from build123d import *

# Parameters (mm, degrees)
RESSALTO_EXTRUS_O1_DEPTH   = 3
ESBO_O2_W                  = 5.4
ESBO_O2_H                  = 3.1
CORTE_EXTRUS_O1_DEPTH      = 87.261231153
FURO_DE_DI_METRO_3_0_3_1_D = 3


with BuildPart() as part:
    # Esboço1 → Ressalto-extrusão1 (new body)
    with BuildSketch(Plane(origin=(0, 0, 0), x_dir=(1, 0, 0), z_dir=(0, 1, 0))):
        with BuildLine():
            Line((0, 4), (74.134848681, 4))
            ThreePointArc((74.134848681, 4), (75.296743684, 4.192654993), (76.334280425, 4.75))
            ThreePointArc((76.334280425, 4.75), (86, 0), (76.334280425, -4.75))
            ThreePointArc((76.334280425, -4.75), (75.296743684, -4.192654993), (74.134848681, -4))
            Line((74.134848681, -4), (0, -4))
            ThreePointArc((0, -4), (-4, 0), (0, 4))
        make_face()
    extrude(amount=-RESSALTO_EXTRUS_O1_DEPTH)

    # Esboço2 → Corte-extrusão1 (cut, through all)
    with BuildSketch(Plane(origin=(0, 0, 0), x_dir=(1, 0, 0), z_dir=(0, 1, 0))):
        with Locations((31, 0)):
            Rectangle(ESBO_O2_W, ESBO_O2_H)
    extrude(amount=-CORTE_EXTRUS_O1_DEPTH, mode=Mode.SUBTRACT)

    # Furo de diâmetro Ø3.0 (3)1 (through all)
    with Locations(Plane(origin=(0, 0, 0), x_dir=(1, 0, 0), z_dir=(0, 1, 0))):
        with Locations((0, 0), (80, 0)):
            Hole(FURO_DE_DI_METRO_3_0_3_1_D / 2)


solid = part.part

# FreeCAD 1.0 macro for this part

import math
import FreeCAD as App
import Part
import Sketcher
from FreeCAD import Vector
Q = App.Units.Quantity

doc = App.newDocument("Part")
body = doc.addObject("PartDesign::Body", "Body")

# Sketch on XZ plane
sketch1 = body.newObject("Sketcher::SketchObject", "Sketch")
sketch1.AttachmentSupport = (doc.getObject("XZ_Plane"), [""])
sketch1.MapMode = "FlatFace"
sketch1.addGeometry(Part.LineSegment(Vector(74.134849, -4, 0), Vector(0, -4, 0)), False)
sketch1.addGeometry(Part.ArcOfCircle(Part.Circle(Vector(0, 0, 0), Vector(0, 0, 1), 4), math.radians(90), math.radians(270)), False)
sketch1.addGeometry(Part.LineSegment(Vector(0, 4, 0), Vector(74.134849, 4, 0)), False)
sketch1.addGeometry(Part.ArcOfCircle(Part.Circle(Vector(74.134849, 7.6, 0), Vector(0, 0, 1), 3.6), math.radians(-90), math.radians(-52.341538)), False)
sketch1.addGeometry(Part.ArcOfCircle(Part.Circle(Vector(80, 0, 0), Vector(0, 0, 1), 6), math.radians(-127.658462), math.radians(127.658462)), False)
sketch1.addGeometry(Part.ArcOfCircle(Part.Circle(Vector(74.134849, -7.6, 0), Vector(0, 0, 1), 3.6), math.radians(52.341538), math.radians(90)), False)
sketch1.addConstraint(Sketcher.Constraint("Tangent", 0, 2, 1, 2))
sketch1.addConstraint(Sketcher.Constraint("Tangent", 1, 1, 2, 1))
sketch1.addConstraint(Sketcher.Constraint("Tangent", 2, 2, 3, 1))
sketch1.addConstraint(Sketcher.Constraint("Tangent", 3, 2, 4, 2))
sketch1.addConstraint(Sketcher.Constraint("Tangent", 4, 1, 5, 1))
sketch1.addConstraint(Sketcher.Constraint("Tangent", 5, 2, 0, 1))
sketch1.addConstraint(Sketcher.Constraint("Horizontal", 0))
sketch1.addConstraint(Sketcher.Constraint("Horizontal", 2))
sketch1.addConstraint(Sketcher.Constraint("Coincident", 1, 3, -1, 1))
sketch1.addConstraint(Sketcher.Constraint("Equal", 3, 5))
sketch1.addConstraint(Sketcher.Constraint("PointOnObject", 4, 3, -1))
sketch1.addConstraint(Sketcher.Constraint("Radius", 1, Q("4 mm")))
sketch1.addConstraint(Sketcher.Constraint("Radius", 4, Q("6 mm")))
sketch1.addConstraint(Sketcher.Constraint("Radius", 3, Q("3.6 mm")))
sketch1.addConstraint(Sketcher.Constraint("DistanceX", -1, 1, 4, 3, Q("80 mm")))
pad1 = body.newObject("PartDesign::Pad", "Pad")
pad1.Profile = sketch1
pad1.Length = 3

# Sketch on XZ plane
sketch2 = body.newObject("Sketcher::SketchObject", "Sketch001")
sketch2.AttachmentSupport = (doc.getObject("XZ_Plane"), [""])
sketch2.MapMode = "FlatFace"
sketch2.addGeometry(Part.LineSegment(Vector(28.3, -1.55, 0), Vector(28.3, 1.55, 0)), False)
sketch2.addGeometry(Part.LineSegment(Vector(28.3, 1.55, 0), Vector(33.7, 1.55, 0)), False)
sketch2.addGeometry(Part.LineSegment(Vector(33.7, 1.55, 0), Vector(33.7, -1.55, 0)), False)
sketch2.addGeometry(Part.LineSegment(Vector(33.7, -1.55, 0), Vector(28.3, -1.55, 0)), False)
sketch2.addConstraint(Sketcher.Constraint("Coincident", 0, 2, 1, 1))
sketch2.addConstraint(Sketcher.Constraint("Coincident", 1, 2, 2, 1))
sketch2.addConstraint(Sketcher.Constraint("Coincident", 2, 2, 3, 1))
sketch2.addConstraint(Sketcher.Constraint("Coincident", 3, 2, 0, 1))
sketch2.addConstraint(Sketcher.Constraint("Vertical", 0))
sketch2.addConstraint(Sketcher.Constraint("Horizontal", 1))
sketch2.addConstraint(Sketcher.Constraint("Vertical", 2))
sketch2.addConstraint(Sketcher.Constraint("Horizontal", 3))
sketch2.addConstraint(Sketcher.Constraint("DistanceX", 1, 1, 1, 2, Q("5.4 mm")))
sketch2.addConstraint(Sketcher.Constraint("DistanceY", 0, 1, 0, 2, Q("3.1 mm")))
sketch2.addConstraint(Sketcher.Constraint("DistanceX", -1, 1, 0, 2, Q("28.3 mm")))
sketch2.addConstraint(Sketcher.Constraint("DistanceY", -1, 1, 0, 2, Q("1.55 mm")))
pocket1 = body.newObject("PartDesign::Pocket", "Pocket")
pocket1.Profile = sketch2
pocket1.Type = "ThroughAll"
pocket1.Reversed = True

# Sketch on XZ plane
sketch3 = body.newObject("Sketcher::SketchObject", "Sketch002")
sketch3.AttachmentSupport = (doc.getObject("XZ_Plane"), [""])
sketch3.MapMode = "FlatFace"
sketch3.addGeometry(Part.Circle(Vector(0, 0, 0), Vector(0, 0, 1), 1.5), False)
sketch3.addGeometry(Part.Circle(Vector(80, 0, 0), Vector(0, 0, 1), 1.5), False)
sketch3.addConstraint(Sketcher.Constraint("Coincident", 0, 3, -1, 1))
sketch3.addConstraint(Sketcher.Constraint("Equal", 0, 1))
sketch3.addConstraint(Sketcher.Constraint("PointOnObject", 1, 3, -1))
sketch3.addConstraint(Sketcher.Constraint("Diameter", 0, Q("3 mm")))
sketch3.addConstraint(Sketcher.Constraint("DistanceX", -1, 1, 1, 3, Q("80 mm")))
doc.recompute()
hole = body.newObject("PartDesign::Hole", "Hole")
hole.Profile = sketch3
hole.ThreadType = "None"
hole.Diameter = 3
hole.DepthType = "ThroughAll"
hole.Reversed = True

doc.recompute()
